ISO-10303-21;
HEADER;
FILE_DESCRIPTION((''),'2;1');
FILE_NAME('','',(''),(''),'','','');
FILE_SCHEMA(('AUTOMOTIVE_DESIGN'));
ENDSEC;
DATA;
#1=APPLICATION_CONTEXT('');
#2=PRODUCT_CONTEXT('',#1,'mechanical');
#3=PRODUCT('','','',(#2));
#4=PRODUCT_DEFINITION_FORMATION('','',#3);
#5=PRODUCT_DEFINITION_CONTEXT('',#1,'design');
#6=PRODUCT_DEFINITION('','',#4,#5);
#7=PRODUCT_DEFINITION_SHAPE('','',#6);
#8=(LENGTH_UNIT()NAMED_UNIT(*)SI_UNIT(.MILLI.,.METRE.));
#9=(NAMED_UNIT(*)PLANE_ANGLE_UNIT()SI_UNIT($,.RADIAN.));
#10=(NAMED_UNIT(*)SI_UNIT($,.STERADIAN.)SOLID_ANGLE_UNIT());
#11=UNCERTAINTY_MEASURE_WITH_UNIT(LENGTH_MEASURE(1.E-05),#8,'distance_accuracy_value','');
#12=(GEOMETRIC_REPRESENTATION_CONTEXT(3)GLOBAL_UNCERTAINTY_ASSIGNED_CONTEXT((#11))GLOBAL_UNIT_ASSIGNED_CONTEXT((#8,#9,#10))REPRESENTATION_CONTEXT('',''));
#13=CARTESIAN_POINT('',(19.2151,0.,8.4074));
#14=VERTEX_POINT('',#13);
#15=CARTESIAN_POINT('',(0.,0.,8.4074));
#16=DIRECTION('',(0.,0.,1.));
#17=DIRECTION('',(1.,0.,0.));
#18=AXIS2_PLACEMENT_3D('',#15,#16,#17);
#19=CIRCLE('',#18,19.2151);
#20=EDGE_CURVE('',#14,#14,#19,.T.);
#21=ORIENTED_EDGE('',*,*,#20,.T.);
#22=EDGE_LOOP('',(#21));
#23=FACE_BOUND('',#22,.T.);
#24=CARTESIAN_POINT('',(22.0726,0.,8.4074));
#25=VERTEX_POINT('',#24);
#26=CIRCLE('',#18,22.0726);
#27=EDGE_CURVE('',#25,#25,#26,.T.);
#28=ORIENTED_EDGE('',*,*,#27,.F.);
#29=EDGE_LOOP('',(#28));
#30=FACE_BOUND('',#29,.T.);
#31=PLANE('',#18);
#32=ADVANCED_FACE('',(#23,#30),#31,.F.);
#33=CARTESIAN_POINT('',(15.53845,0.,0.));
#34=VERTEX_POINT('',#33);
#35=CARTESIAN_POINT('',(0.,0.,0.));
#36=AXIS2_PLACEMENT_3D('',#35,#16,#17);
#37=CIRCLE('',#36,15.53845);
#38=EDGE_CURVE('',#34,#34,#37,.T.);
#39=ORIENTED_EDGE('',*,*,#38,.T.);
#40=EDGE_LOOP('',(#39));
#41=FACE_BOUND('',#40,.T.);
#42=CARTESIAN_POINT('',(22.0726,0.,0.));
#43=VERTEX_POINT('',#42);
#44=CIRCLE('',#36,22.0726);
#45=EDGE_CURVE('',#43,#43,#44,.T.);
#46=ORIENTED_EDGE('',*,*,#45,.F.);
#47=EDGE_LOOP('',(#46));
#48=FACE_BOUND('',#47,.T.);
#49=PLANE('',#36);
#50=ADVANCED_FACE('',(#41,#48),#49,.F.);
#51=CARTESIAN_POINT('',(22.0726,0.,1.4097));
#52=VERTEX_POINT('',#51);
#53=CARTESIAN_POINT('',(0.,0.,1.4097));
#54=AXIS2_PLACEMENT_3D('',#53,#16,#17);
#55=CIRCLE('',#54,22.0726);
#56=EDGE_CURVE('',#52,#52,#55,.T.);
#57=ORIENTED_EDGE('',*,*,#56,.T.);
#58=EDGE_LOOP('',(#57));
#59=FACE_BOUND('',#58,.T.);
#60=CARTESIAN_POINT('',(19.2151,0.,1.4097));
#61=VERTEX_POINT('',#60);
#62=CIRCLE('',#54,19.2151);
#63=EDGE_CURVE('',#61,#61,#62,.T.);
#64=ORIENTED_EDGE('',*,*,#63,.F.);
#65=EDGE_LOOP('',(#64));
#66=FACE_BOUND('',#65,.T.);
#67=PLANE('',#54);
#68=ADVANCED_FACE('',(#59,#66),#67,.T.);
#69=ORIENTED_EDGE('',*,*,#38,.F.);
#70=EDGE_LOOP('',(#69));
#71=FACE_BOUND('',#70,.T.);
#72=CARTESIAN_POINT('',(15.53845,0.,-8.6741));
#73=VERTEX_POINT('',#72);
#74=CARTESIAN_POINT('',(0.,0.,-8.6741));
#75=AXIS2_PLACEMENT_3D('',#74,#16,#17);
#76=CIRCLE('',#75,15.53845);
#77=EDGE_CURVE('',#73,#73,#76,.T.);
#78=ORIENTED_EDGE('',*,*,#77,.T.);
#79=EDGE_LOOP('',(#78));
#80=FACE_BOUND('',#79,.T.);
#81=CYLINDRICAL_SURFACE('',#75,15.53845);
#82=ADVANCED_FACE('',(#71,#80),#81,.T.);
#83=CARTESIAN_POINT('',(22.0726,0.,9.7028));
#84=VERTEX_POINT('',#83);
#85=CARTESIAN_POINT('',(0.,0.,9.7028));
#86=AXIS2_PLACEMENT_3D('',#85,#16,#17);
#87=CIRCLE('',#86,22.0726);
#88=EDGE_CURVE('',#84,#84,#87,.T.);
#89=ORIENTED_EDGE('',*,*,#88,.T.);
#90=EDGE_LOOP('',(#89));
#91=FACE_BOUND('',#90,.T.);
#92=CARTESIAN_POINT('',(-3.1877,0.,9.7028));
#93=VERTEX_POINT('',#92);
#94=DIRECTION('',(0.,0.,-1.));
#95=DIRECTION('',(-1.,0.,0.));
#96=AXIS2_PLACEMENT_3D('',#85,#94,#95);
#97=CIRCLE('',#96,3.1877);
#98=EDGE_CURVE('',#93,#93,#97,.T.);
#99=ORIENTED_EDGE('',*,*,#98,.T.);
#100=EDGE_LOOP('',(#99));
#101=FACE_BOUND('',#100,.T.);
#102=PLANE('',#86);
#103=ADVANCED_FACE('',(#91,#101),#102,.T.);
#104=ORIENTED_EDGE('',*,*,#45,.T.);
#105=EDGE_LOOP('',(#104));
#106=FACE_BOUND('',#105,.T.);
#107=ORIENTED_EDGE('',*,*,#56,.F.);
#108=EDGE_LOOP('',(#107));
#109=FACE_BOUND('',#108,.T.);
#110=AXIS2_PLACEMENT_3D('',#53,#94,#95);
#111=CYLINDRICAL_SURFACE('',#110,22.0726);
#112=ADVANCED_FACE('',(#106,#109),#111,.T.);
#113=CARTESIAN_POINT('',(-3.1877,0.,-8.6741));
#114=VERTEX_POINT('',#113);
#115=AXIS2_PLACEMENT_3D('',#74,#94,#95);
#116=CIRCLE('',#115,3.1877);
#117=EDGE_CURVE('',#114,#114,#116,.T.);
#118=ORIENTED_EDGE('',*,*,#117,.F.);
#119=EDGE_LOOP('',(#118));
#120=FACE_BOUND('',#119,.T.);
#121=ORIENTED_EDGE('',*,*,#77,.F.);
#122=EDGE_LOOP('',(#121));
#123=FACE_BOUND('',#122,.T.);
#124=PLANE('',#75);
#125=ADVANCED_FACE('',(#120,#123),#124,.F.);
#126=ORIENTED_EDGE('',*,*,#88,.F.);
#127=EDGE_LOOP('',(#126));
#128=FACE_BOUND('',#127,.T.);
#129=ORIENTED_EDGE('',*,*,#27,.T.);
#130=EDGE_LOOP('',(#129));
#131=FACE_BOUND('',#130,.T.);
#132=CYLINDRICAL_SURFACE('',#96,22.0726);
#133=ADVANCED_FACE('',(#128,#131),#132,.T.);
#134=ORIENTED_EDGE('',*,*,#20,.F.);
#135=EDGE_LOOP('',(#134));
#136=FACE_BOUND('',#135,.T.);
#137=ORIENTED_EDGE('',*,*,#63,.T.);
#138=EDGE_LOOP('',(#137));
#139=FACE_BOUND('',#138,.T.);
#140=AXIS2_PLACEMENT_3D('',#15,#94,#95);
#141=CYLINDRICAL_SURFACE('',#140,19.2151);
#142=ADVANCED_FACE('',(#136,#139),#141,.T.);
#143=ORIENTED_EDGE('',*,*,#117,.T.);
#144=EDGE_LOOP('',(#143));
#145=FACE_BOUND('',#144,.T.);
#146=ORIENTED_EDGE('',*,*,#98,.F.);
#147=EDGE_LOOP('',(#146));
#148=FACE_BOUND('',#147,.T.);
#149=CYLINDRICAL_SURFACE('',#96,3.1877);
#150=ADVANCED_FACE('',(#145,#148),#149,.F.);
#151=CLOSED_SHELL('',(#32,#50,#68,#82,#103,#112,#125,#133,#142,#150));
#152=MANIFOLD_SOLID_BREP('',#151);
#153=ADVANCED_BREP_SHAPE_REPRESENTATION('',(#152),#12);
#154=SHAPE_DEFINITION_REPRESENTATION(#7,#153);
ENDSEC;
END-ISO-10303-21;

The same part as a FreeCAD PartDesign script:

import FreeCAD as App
import Part
import Sketcher
Q = App.Units.Quantity

doc = App.newDocument("Part")
body = doc.addObject("PartDesign::Body", "Body")

# Sketch on XY plane
sketch1 = doc.addObject("Sketcher::SketchObject", "Sketch")
body.addObject(sketch1)
sketch1.AttachmentSupport = (doc.XY_Plane, [""])
sketch1.MapMode = "FlatFace"
sketch1.addGeometry(Part.Circle(App.Vector(0, 0, 0), App.Vector(0, 0, 1), 16), False)
sketch1.addConstraint([
    Sketcher.Constraint("Coincident", 0, 3, -1, 1),
    Sketcher.Constraint("Diameter", 0, Q("1.2235 in")),
])
pad1 = doc.addObject("PartDesign::Pad", "Pad")
body.addObject(pad1)
pad1.Profile = sketch1
pad1.Length = Q("0.3415 in")
pad1.Reversed = True

# Sketch on XY plane
sketch2 = doc.addObject("Sketcher::SketchObject", "Sketch001")
body.addObject(sketch2)
sketch2.AttachmentSupport = (doc.XY_Plane, [""])
sketch2.MapMode = "FlatFace"
sketch2.addGeometry(Part.Circle(App.Vector(0, 0, 0), App.Vector(0, 0, 1), 22), False)
sketch2.addConstraint([
    Sketcher.Constraint("Coincident", 0, 3, -1, 1),
    Sketcher.Constraint("Diameter", 0, Q("1.738 in")),
])
pad2 = doc.addObject("PartDesign::Pad", "Pad001")
body.addObject(pad2)
pad2.Profile = sketch2
pad2.Length = Q("0.0555 in")

# Sketch on XY plane
sketch3 = doc.addObject("Sketcher::SketchObject", "Sketch002")
body.addObject(sketch3)
sketch3.AttachmentSupport = (doc.XY_Plane, [""])
sketch3.MapMode = "FlatFace"
sketch3.AttachmentOffset = App.Placement(App.Vector(0, 0, 0.0555 * 25.4), App.Rotation())
sketch3.addGeometry(Part.Circle(App.Vector(0, 0, 0), App.Vector(0, 0, 1), 19), False)
sketch3.addConstraint([
    Sketcher.Constraint("Coincident", 0, 3, -1, 1),
    Sketcher.Constraint("Diameter", 0, Q("1.513 in")),
])
pad3 = doc.addObject("PartDesign::Pad", "Pad002")
body.addObject(pad3)
pad3.Profile = sketch3
pad3.Length = Q("0.2755 in")

# Sketch on XY plane
sketch4 = doc.addObject("Sketcher::SketchObject", "Sketch003")
body.addObject(sketch4)
sketch4.AttachmentSupport = (doc.XY_Plane, [""])
sketch4.MapMode = "FlatFace"
sketch4.AttachmentOffset = App.Placement(App.Vector(0, 0, 0.331 * 25.4), App.Rotation())
sketch4.addGeometry(Part.Circle(App.Vector(0, 0, 0), App.Vector(0, 0, 1), 22), False)
sketch4.addConstraint([
    Sketcher.Constraint("Coincident", 0, 3, -1, 1),
    Sketcher.Constraint("Diameter", 0, Q("1.738 in")),
])
pad4 = doc.addObject("PartDesign::Pad", "Pad003")
body.addObject(pad4)
pad4.Profile = sketch4
pad4.Length = Q("0.051 in")

# Sketch on XY plane
sketch5 = doc.addObject("Sketcher::SketchObject", "Sketch004")
body.addObject(sketch5)
sketch5.AttachmentSupport = (doc.XY_Plane, [""])
sketch5.MapMode = "FlatFace"
sketch5.AttachmentOffset = App.Placement(App.Vector(0, 0, -0.3415 * 25.4), App.Rotation())
sketch5.addGeometry(Part.Circle(App.Vector(0, 0, 0), App.Vector(0, 0, 1), 3.2), False)
sketch5.addConstraint([
    Sketcher.Constraint("Coincident", 0, 3, -1, 1),
    Sketcher.Constraint("Diameter", 0, Q("0.251 in")),
])
pocket1 = doc.addObject("PartDesign::Pocket", "Pocket")
body.addObject(pocket1)
pocket1.Profile = sketch5
pocket1.Type = "ThroughAll"
pocket1.Reversed = True

doc.recompute()
